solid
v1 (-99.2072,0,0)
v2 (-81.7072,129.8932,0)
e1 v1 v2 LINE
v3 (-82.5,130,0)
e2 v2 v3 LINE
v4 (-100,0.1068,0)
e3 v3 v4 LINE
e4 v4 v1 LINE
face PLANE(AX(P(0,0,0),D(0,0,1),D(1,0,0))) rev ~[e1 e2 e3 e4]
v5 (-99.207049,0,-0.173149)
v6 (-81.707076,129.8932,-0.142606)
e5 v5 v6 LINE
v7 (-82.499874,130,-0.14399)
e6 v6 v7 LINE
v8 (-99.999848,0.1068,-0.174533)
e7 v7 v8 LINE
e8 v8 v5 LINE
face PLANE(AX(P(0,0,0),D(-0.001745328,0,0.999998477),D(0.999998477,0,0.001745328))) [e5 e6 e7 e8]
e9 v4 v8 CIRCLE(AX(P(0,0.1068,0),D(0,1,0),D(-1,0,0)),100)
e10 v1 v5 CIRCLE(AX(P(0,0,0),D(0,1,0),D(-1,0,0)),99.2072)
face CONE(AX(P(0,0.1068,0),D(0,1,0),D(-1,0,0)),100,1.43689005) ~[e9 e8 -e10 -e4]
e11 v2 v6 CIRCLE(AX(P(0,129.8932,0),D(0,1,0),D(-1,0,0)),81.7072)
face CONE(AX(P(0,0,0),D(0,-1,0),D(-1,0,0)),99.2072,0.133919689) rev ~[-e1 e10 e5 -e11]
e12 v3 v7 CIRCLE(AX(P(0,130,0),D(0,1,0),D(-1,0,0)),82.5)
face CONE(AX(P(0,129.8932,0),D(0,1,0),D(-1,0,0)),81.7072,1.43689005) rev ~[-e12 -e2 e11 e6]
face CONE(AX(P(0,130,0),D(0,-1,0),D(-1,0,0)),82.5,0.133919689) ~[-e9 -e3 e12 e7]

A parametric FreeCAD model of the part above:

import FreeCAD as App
import Part
import Sketcher

V = App.Vector

doc = App.newDocument("Part")
params = doc.addObject("Spreadsheet::Sheet", "Params")
for row, (alias, value) in enumerate([
    ("sketch1_length", "0.8 mm"),
    ("revolution_angle", "359.9 deg"),
], start=1):
    params.set(f"A{row}", alias)
    params.set(f"B{row}", "=" + value)
    params.setAlias(f"B{row}", alias)

body = doc.addObject("PartDesign::Body", "Body")

# Sketch on XY plane
sketch1 = body.newObject("Sketcher::SketchObject", "Sketch")
sketch1.AttachmentSupport = (doc.getObject("XY_Plane"), [""])
sketch1.MapMode = "FlatFace"
sketch1.addGeometry([
    Part.LineSegment(V(-81.7, 129.9, 0), V(-82.5, 130, 0)),
    Part.LineSegment(V(-82.5, 130, 0), V(-100, 0.1, 0)),
    Part.LineSegment(V(-100, 0.1, 0), V(-99.2, 0, 0)),
    Part.LineSegment(V(-99.2, 0, 0), V(-81.7, 129.9, 0)),
], False)
sketch1.addConstraint([
    Sketcher.Constraint("Coincident", 0, 2, 1, 1),
    Sketcher.Constraint("Coincident", 1, 2, 2, 1),
    Sketcher.Constraint("Coincident", 2, 2, 3, 1),
    Sketcher.Constraint("Coincident", 3, 2, 0, 1),
    Sketcher.Constraint("PointOnObject", 2, 2, -1),
    Sketcher.Constraint("Perpendicular", 0, 1),
    Sketcher.Constraint("Perpendicular", 1, 2),
    Sketcher.Constraint("Perpendicular", 2, 3),
    Sketcher.Constraint("DistanceY", -1, 1, 0, 2, 130.0),
    Sketcher.Constraint("Distance", 0, 0.8),
    Sketcher.Constraint("DistanceX", 1, 2, -1, 1, 100.0),
    Sketcher.Constraint("DistanceX", 0, 2, -1, 1, 82.5),
])
sketch1.setExpression("Constraints[9]", "Params.sketch1_length")
revolution = body.newObject("PartDesign::Revolution", "Revolution")
revolution.Profile = sketch1
revolution.ReferenceAxis = (sketch1, ["V_Axis"])
revolution.setExpression("Angle", "Params.revolution_angle")

doc.recompute()
